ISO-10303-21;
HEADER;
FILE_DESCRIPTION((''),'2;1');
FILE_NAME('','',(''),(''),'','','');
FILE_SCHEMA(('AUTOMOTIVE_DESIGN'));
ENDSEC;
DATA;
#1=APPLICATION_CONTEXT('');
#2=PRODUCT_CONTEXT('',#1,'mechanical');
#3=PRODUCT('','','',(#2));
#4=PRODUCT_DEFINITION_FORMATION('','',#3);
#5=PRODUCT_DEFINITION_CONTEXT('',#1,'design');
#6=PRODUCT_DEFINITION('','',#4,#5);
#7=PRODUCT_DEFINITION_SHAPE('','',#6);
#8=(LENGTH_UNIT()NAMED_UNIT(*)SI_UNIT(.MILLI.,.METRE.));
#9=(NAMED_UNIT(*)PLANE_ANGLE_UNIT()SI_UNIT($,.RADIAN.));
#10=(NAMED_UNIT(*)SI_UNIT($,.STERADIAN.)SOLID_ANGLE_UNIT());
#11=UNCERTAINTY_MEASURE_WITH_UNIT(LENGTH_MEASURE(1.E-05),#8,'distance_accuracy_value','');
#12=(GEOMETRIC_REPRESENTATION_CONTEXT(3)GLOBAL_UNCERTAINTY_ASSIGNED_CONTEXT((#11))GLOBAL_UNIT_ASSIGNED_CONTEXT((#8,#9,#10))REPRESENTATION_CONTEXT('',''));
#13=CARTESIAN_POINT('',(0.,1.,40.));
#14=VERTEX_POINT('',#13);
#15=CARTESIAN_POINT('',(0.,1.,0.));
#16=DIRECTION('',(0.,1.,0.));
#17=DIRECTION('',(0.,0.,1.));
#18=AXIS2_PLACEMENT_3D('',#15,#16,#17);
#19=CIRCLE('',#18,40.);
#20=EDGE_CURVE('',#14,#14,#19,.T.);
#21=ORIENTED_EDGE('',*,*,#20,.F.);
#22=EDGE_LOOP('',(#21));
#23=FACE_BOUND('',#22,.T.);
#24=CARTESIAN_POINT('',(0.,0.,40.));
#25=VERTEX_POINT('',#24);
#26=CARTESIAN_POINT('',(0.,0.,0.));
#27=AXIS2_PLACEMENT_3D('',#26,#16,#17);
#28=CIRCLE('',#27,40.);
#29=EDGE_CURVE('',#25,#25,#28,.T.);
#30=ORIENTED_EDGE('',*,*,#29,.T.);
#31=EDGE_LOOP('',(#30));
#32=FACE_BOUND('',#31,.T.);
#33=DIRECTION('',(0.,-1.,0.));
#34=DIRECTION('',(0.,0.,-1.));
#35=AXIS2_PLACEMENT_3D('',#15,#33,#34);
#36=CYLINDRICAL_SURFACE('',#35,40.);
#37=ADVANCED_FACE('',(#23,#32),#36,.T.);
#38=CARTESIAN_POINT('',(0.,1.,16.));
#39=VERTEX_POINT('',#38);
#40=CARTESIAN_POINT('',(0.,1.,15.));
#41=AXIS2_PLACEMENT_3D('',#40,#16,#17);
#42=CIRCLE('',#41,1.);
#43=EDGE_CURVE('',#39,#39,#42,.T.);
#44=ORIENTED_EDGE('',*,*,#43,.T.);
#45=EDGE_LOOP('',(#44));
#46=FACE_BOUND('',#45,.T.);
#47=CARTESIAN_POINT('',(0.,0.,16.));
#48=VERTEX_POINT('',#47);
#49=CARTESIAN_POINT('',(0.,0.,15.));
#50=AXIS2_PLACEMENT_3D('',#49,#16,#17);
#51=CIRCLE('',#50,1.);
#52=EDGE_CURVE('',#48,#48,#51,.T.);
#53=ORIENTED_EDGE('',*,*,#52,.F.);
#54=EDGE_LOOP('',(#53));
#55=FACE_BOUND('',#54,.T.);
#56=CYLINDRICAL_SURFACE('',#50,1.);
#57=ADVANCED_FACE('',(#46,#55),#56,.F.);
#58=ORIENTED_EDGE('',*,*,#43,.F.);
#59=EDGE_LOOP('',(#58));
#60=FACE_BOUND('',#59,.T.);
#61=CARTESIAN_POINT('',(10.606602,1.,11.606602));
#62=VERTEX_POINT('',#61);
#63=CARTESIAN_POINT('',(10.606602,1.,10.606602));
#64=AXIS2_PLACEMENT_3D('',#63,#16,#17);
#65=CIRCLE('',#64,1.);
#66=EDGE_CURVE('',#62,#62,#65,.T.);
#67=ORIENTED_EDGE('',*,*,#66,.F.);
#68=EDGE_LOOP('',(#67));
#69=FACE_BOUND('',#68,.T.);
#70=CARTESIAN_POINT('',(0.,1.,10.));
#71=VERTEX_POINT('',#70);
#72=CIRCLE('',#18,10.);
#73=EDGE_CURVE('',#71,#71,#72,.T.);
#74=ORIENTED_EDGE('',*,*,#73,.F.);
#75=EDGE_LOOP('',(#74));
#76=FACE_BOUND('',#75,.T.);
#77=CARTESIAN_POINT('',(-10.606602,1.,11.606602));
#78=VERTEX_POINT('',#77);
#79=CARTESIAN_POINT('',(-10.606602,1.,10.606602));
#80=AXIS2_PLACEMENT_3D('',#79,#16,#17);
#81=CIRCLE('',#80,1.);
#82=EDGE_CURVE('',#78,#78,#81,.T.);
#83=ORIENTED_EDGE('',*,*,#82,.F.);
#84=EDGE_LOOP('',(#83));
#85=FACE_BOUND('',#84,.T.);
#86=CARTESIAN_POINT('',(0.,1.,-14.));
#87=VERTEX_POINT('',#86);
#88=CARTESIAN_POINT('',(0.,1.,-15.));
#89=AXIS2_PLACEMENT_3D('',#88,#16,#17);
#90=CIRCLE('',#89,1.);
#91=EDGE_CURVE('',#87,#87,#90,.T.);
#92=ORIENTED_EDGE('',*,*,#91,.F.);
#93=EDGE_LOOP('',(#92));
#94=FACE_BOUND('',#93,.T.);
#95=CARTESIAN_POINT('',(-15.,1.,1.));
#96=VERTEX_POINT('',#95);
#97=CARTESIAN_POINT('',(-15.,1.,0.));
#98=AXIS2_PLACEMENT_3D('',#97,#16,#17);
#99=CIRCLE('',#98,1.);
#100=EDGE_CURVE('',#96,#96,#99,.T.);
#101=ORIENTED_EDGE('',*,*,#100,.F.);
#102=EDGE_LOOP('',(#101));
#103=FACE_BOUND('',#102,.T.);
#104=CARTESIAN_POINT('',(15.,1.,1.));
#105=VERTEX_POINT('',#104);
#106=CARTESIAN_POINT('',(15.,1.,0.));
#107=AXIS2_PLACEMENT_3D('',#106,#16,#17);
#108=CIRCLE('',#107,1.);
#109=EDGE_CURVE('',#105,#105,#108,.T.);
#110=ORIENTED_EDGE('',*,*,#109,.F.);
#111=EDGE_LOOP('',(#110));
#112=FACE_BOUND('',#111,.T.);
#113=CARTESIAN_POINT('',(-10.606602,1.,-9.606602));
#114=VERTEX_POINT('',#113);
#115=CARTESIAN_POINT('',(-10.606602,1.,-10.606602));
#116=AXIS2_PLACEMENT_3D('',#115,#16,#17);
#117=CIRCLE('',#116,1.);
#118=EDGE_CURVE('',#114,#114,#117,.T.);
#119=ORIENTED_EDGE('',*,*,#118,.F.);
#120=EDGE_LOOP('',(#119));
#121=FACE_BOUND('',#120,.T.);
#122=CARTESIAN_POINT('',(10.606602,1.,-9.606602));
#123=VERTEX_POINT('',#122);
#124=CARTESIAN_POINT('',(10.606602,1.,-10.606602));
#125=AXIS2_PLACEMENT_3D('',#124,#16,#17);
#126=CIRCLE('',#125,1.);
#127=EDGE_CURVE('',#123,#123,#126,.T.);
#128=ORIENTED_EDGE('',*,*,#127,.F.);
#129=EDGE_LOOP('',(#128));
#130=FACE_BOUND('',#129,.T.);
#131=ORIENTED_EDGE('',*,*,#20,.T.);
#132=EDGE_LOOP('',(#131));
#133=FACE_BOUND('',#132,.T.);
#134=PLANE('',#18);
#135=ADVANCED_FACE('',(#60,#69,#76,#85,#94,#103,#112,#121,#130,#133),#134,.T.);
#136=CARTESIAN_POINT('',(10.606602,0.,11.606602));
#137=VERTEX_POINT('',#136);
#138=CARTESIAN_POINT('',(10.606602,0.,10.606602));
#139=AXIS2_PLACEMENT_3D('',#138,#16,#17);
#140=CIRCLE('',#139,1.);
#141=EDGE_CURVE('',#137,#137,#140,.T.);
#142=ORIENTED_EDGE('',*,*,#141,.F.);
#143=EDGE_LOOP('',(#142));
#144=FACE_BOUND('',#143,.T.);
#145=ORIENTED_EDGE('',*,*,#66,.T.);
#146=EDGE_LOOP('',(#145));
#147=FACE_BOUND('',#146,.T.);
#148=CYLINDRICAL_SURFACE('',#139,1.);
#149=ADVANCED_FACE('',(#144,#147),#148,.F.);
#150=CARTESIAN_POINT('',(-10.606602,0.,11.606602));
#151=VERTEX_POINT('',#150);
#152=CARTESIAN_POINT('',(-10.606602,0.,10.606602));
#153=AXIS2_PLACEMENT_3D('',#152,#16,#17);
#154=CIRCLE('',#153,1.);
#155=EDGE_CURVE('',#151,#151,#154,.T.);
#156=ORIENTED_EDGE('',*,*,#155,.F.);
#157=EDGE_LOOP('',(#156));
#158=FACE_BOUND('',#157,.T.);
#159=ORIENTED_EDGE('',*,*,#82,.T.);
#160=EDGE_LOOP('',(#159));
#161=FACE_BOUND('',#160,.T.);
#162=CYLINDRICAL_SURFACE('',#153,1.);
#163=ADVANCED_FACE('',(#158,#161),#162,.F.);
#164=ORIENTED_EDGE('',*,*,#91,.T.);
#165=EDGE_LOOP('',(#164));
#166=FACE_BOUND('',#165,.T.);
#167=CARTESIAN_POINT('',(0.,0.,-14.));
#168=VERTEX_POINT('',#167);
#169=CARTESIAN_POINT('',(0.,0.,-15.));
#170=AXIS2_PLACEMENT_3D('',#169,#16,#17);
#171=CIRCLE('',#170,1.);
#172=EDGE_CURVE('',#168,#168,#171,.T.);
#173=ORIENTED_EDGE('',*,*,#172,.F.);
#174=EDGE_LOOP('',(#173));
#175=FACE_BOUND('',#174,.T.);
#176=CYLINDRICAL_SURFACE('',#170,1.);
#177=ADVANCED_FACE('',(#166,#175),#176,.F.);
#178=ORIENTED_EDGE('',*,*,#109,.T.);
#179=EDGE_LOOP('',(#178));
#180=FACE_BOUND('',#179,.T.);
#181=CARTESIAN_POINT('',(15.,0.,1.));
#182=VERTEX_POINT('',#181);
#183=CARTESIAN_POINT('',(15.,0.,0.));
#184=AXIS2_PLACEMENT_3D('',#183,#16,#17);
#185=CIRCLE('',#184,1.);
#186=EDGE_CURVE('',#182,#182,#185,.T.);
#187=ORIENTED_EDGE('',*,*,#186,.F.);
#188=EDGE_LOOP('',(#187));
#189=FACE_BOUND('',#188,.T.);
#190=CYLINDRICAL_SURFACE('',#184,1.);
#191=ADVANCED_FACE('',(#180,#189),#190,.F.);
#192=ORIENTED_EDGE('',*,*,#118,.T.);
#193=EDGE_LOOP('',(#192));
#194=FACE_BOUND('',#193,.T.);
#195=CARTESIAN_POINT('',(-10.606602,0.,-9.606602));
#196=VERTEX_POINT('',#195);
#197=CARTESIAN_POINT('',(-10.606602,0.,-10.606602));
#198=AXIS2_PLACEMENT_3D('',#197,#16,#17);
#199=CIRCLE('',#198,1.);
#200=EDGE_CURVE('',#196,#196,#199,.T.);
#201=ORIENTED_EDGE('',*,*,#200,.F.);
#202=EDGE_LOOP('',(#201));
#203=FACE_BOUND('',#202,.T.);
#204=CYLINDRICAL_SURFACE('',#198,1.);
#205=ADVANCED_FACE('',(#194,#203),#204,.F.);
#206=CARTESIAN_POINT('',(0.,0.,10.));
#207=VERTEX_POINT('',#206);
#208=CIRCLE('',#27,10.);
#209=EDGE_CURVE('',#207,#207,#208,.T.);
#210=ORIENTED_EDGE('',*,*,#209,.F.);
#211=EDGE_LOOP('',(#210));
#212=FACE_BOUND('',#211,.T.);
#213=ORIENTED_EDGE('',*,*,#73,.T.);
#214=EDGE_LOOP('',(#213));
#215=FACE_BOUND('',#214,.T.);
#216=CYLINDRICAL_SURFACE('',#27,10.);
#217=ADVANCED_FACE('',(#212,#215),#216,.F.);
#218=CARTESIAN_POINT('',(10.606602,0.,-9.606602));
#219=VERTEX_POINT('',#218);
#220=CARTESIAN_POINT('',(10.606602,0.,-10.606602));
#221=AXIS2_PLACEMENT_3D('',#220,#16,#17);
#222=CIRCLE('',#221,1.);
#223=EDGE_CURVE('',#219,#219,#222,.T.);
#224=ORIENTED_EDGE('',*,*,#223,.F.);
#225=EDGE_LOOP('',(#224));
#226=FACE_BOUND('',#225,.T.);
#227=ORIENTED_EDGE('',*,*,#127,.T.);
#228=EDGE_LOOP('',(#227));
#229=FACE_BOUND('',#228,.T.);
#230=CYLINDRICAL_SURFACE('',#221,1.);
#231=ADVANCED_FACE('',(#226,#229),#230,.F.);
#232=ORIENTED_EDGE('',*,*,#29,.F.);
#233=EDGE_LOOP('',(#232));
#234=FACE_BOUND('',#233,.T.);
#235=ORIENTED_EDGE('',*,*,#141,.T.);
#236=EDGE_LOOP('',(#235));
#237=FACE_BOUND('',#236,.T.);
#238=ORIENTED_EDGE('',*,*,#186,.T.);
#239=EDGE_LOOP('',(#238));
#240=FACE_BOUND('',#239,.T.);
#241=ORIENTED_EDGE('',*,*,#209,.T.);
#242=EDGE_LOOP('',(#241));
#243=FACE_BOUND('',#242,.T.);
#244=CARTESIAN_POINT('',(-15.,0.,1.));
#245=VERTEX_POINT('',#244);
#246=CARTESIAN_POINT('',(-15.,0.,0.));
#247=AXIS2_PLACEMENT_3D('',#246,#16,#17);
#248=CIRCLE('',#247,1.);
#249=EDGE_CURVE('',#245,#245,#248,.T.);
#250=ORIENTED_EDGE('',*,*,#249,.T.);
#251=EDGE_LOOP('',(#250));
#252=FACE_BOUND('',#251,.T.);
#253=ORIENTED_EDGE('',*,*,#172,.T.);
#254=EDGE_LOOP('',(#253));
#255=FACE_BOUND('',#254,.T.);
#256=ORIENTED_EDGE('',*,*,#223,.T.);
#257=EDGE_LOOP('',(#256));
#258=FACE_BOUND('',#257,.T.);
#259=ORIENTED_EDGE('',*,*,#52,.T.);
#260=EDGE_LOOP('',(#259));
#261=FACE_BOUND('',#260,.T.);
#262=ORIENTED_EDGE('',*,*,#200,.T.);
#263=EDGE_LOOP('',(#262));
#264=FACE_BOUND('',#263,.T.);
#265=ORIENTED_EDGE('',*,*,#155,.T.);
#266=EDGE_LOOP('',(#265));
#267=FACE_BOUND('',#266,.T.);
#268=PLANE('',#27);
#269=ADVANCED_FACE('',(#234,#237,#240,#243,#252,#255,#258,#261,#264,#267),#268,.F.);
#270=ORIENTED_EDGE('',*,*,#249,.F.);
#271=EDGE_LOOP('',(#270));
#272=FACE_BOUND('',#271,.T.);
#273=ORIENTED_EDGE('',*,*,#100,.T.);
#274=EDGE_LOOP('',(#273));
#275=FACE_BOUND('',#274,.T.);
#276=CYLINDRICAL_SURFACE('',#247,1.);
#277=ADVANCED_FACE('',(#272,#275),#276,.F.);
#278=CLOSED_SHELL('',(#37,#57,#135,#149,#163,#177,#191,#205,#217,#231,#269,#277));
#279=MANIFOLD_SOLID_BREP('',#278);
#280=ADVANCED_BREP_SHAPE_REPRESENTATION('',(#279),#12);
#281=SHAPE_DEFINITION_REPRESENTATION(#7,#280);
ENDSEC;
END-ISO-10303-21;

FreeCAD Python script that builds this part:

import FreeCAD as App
import Part
import Sketcher

V = App.Vector
Q = App.Units.Quantity

doc = App.newDocument("Part")
body = doc.addObject("PartDesign::Body", "Body")

sketch1 = body.newObject("Sketcher::SketchObject", "Sketch")
sketch1.AttachmentSupport = (doc.getObject("XZ_Plane"), [""])
sketch1.MapMode = "FlatFace"
sketch1.addGeometry(Part.Circle(V(0, 0, 0), V(0, 0, 1), 40), False)
sketch1.addConstraint(Sketcher.Constraint("Coincident", 0, 3, -1, 1))
sketch1.addConstraint(Sketcher.Constraint("Diameter", 0, Q("80 mm")))
pad1 = body.newObject("PartDesign::Pad", "Pad")
pad1.Profile = sketch1
pad1.Length = 1
pad1.Reversed = True

sketch2 = body.newObject("Sketcher::SketchObject", "Sketch001")
sketch2.AttachmentSupport = (doc.getObject("XZ_Plane"), [""])
sketch2.MapMode = "FlatFace"
sketch2.AttachmentOffset = App.Placement(V(0, 0, -1), App.Rotation())
sketch2.addGeometry(Part.Circle(V(0, 0, 0), V(0, 0, 1), 10), False)
sketch2.addConstraint(Sketcher.Constraint("Coincident", 0, 3, -1, 1))
sketch2.addConstraint(Sketcher.Constraint("Diameter", 0, Q("20 mm")))
pocket1 = body.newObject("PartDesign::Pocket", "Pocket")
pocket1.Profile = sketch2
pocket1.Type = "ThroughAll"
pocket1.Reversed = True

sketch3 = body.newObject("Sketcher::SketchObject", "Sketch002")
sketch3.AttachmentSupport = (doc.getObject("XZ_Plane"), [""])
sketch3.MapMode = "FlatFace"
sketch3.AttachmentOffset = App.Placement(V(0, 0, -1), App.Rotation())
sketch3.addGeometry(Part.Circle(V(0, -15, 0), V(0, 0, 1), 1), False)
sketch3.addGeometry(Part.Circle(V(10.606602, -10.606602, 0), V(0, 0, 1), 1), False)
sketch3.addGeometry(Part.Circle(V(15, 0, 0), V(0, 0, 1), 1), False)
sketch3.addGeometry(Part.Circle(V(10.606602, 10.606602, 0), V(0, 0, 1), 1), False)
sketch3.addGeometry(Part.Circle(V(0, 15, 0), V(0, 0, 1), 1), False)
sketch3.addGeometry(Part.Circle(V(-10.606602, 10.606602, 0), V(0, 0, 1), 1), False)
sketch3.addGeometry(Part.Circle(V(-15, 0, 0), V(0, 0, 1), 1), False)
sketch3.addGeometry(Part.Circle(V(-10.606602, -10.606602, 0), V(0, 0, 1), 1), False)
sketch3.addConstraint(Sketcher.Constraint("Equal", 0, 1))
sketch3.addConstraint(Sketcher.Constraint("Equal", 1, 2))
sketch3.addConstraint(Sketcher.Constraint("Equal", 2, 3))
sketch3.addConstraint(Sketcher.Constraint("Equal", 3, 4))
sketch3.addConstraint(Sketcher.Constraint("Equal", 4, 5))
sketch3.addConstraint(Sketcher.Constraint("Equal", 5, 6))
sketch3.addConstraint(Sketcher.Constraint("Equal", 6, 7))
sketch3.addConstraint(Sketcher.Constraint("Symmetric", 0, 3, 4, 3, -1, 1))
sketch3.addConstraint(Sketcher.Constraint("Symmetric", 1, 3, 5, 3, -1, 1))
sketch3.addConstraint(Sketcher.Constraint("Symmetric", 2, 3, 6, 3, -1, 1))
sketch3.addConstraint(Sketcher.Constraint("Symmetric", 3, 3, 7, 3, -1, 1))
sketch3.addConstraint(Sketcher.Constraint("Symmetric", 3, 3, 5, 3, -2))
sketch3.addConstraint(Sketcher.Constraint("PointOnObject", 0, 3, -2))
sketch3.addConstraint(Sketcher.Constraint("PointOnObject", 2, 3, -1))
sketch3.addConstraint(Sketcher.Constraint("Diameter", 0, Q("2 mm")))
sketch3.addConstraint(Sketcher.Constraint("DistanceY", 0, 3, -1, 1, Q("15 mm")))
sketch3.addConstraint(Sketcher.Constraint("DistanceX", -1, 1, 2, 3, Q("15 mm")))
sketch3.addConstraint(Sketcher.Constraint("DistanceX", -1, 1, 1, 3, Q("10.606602 mm")))
sketch3.addConstraint(Sketcher.Constraint("DistanceY", 1, 3, -1, 1, Q("10.606602 mm")))
pocket2 = body.newObject("PartDesign::Pocket", "Pocket001")
pocket2.Profile = sketch3
pocket2.Type = "ThroughAll"
pocket2.Reversed = True

doc.recompute()
